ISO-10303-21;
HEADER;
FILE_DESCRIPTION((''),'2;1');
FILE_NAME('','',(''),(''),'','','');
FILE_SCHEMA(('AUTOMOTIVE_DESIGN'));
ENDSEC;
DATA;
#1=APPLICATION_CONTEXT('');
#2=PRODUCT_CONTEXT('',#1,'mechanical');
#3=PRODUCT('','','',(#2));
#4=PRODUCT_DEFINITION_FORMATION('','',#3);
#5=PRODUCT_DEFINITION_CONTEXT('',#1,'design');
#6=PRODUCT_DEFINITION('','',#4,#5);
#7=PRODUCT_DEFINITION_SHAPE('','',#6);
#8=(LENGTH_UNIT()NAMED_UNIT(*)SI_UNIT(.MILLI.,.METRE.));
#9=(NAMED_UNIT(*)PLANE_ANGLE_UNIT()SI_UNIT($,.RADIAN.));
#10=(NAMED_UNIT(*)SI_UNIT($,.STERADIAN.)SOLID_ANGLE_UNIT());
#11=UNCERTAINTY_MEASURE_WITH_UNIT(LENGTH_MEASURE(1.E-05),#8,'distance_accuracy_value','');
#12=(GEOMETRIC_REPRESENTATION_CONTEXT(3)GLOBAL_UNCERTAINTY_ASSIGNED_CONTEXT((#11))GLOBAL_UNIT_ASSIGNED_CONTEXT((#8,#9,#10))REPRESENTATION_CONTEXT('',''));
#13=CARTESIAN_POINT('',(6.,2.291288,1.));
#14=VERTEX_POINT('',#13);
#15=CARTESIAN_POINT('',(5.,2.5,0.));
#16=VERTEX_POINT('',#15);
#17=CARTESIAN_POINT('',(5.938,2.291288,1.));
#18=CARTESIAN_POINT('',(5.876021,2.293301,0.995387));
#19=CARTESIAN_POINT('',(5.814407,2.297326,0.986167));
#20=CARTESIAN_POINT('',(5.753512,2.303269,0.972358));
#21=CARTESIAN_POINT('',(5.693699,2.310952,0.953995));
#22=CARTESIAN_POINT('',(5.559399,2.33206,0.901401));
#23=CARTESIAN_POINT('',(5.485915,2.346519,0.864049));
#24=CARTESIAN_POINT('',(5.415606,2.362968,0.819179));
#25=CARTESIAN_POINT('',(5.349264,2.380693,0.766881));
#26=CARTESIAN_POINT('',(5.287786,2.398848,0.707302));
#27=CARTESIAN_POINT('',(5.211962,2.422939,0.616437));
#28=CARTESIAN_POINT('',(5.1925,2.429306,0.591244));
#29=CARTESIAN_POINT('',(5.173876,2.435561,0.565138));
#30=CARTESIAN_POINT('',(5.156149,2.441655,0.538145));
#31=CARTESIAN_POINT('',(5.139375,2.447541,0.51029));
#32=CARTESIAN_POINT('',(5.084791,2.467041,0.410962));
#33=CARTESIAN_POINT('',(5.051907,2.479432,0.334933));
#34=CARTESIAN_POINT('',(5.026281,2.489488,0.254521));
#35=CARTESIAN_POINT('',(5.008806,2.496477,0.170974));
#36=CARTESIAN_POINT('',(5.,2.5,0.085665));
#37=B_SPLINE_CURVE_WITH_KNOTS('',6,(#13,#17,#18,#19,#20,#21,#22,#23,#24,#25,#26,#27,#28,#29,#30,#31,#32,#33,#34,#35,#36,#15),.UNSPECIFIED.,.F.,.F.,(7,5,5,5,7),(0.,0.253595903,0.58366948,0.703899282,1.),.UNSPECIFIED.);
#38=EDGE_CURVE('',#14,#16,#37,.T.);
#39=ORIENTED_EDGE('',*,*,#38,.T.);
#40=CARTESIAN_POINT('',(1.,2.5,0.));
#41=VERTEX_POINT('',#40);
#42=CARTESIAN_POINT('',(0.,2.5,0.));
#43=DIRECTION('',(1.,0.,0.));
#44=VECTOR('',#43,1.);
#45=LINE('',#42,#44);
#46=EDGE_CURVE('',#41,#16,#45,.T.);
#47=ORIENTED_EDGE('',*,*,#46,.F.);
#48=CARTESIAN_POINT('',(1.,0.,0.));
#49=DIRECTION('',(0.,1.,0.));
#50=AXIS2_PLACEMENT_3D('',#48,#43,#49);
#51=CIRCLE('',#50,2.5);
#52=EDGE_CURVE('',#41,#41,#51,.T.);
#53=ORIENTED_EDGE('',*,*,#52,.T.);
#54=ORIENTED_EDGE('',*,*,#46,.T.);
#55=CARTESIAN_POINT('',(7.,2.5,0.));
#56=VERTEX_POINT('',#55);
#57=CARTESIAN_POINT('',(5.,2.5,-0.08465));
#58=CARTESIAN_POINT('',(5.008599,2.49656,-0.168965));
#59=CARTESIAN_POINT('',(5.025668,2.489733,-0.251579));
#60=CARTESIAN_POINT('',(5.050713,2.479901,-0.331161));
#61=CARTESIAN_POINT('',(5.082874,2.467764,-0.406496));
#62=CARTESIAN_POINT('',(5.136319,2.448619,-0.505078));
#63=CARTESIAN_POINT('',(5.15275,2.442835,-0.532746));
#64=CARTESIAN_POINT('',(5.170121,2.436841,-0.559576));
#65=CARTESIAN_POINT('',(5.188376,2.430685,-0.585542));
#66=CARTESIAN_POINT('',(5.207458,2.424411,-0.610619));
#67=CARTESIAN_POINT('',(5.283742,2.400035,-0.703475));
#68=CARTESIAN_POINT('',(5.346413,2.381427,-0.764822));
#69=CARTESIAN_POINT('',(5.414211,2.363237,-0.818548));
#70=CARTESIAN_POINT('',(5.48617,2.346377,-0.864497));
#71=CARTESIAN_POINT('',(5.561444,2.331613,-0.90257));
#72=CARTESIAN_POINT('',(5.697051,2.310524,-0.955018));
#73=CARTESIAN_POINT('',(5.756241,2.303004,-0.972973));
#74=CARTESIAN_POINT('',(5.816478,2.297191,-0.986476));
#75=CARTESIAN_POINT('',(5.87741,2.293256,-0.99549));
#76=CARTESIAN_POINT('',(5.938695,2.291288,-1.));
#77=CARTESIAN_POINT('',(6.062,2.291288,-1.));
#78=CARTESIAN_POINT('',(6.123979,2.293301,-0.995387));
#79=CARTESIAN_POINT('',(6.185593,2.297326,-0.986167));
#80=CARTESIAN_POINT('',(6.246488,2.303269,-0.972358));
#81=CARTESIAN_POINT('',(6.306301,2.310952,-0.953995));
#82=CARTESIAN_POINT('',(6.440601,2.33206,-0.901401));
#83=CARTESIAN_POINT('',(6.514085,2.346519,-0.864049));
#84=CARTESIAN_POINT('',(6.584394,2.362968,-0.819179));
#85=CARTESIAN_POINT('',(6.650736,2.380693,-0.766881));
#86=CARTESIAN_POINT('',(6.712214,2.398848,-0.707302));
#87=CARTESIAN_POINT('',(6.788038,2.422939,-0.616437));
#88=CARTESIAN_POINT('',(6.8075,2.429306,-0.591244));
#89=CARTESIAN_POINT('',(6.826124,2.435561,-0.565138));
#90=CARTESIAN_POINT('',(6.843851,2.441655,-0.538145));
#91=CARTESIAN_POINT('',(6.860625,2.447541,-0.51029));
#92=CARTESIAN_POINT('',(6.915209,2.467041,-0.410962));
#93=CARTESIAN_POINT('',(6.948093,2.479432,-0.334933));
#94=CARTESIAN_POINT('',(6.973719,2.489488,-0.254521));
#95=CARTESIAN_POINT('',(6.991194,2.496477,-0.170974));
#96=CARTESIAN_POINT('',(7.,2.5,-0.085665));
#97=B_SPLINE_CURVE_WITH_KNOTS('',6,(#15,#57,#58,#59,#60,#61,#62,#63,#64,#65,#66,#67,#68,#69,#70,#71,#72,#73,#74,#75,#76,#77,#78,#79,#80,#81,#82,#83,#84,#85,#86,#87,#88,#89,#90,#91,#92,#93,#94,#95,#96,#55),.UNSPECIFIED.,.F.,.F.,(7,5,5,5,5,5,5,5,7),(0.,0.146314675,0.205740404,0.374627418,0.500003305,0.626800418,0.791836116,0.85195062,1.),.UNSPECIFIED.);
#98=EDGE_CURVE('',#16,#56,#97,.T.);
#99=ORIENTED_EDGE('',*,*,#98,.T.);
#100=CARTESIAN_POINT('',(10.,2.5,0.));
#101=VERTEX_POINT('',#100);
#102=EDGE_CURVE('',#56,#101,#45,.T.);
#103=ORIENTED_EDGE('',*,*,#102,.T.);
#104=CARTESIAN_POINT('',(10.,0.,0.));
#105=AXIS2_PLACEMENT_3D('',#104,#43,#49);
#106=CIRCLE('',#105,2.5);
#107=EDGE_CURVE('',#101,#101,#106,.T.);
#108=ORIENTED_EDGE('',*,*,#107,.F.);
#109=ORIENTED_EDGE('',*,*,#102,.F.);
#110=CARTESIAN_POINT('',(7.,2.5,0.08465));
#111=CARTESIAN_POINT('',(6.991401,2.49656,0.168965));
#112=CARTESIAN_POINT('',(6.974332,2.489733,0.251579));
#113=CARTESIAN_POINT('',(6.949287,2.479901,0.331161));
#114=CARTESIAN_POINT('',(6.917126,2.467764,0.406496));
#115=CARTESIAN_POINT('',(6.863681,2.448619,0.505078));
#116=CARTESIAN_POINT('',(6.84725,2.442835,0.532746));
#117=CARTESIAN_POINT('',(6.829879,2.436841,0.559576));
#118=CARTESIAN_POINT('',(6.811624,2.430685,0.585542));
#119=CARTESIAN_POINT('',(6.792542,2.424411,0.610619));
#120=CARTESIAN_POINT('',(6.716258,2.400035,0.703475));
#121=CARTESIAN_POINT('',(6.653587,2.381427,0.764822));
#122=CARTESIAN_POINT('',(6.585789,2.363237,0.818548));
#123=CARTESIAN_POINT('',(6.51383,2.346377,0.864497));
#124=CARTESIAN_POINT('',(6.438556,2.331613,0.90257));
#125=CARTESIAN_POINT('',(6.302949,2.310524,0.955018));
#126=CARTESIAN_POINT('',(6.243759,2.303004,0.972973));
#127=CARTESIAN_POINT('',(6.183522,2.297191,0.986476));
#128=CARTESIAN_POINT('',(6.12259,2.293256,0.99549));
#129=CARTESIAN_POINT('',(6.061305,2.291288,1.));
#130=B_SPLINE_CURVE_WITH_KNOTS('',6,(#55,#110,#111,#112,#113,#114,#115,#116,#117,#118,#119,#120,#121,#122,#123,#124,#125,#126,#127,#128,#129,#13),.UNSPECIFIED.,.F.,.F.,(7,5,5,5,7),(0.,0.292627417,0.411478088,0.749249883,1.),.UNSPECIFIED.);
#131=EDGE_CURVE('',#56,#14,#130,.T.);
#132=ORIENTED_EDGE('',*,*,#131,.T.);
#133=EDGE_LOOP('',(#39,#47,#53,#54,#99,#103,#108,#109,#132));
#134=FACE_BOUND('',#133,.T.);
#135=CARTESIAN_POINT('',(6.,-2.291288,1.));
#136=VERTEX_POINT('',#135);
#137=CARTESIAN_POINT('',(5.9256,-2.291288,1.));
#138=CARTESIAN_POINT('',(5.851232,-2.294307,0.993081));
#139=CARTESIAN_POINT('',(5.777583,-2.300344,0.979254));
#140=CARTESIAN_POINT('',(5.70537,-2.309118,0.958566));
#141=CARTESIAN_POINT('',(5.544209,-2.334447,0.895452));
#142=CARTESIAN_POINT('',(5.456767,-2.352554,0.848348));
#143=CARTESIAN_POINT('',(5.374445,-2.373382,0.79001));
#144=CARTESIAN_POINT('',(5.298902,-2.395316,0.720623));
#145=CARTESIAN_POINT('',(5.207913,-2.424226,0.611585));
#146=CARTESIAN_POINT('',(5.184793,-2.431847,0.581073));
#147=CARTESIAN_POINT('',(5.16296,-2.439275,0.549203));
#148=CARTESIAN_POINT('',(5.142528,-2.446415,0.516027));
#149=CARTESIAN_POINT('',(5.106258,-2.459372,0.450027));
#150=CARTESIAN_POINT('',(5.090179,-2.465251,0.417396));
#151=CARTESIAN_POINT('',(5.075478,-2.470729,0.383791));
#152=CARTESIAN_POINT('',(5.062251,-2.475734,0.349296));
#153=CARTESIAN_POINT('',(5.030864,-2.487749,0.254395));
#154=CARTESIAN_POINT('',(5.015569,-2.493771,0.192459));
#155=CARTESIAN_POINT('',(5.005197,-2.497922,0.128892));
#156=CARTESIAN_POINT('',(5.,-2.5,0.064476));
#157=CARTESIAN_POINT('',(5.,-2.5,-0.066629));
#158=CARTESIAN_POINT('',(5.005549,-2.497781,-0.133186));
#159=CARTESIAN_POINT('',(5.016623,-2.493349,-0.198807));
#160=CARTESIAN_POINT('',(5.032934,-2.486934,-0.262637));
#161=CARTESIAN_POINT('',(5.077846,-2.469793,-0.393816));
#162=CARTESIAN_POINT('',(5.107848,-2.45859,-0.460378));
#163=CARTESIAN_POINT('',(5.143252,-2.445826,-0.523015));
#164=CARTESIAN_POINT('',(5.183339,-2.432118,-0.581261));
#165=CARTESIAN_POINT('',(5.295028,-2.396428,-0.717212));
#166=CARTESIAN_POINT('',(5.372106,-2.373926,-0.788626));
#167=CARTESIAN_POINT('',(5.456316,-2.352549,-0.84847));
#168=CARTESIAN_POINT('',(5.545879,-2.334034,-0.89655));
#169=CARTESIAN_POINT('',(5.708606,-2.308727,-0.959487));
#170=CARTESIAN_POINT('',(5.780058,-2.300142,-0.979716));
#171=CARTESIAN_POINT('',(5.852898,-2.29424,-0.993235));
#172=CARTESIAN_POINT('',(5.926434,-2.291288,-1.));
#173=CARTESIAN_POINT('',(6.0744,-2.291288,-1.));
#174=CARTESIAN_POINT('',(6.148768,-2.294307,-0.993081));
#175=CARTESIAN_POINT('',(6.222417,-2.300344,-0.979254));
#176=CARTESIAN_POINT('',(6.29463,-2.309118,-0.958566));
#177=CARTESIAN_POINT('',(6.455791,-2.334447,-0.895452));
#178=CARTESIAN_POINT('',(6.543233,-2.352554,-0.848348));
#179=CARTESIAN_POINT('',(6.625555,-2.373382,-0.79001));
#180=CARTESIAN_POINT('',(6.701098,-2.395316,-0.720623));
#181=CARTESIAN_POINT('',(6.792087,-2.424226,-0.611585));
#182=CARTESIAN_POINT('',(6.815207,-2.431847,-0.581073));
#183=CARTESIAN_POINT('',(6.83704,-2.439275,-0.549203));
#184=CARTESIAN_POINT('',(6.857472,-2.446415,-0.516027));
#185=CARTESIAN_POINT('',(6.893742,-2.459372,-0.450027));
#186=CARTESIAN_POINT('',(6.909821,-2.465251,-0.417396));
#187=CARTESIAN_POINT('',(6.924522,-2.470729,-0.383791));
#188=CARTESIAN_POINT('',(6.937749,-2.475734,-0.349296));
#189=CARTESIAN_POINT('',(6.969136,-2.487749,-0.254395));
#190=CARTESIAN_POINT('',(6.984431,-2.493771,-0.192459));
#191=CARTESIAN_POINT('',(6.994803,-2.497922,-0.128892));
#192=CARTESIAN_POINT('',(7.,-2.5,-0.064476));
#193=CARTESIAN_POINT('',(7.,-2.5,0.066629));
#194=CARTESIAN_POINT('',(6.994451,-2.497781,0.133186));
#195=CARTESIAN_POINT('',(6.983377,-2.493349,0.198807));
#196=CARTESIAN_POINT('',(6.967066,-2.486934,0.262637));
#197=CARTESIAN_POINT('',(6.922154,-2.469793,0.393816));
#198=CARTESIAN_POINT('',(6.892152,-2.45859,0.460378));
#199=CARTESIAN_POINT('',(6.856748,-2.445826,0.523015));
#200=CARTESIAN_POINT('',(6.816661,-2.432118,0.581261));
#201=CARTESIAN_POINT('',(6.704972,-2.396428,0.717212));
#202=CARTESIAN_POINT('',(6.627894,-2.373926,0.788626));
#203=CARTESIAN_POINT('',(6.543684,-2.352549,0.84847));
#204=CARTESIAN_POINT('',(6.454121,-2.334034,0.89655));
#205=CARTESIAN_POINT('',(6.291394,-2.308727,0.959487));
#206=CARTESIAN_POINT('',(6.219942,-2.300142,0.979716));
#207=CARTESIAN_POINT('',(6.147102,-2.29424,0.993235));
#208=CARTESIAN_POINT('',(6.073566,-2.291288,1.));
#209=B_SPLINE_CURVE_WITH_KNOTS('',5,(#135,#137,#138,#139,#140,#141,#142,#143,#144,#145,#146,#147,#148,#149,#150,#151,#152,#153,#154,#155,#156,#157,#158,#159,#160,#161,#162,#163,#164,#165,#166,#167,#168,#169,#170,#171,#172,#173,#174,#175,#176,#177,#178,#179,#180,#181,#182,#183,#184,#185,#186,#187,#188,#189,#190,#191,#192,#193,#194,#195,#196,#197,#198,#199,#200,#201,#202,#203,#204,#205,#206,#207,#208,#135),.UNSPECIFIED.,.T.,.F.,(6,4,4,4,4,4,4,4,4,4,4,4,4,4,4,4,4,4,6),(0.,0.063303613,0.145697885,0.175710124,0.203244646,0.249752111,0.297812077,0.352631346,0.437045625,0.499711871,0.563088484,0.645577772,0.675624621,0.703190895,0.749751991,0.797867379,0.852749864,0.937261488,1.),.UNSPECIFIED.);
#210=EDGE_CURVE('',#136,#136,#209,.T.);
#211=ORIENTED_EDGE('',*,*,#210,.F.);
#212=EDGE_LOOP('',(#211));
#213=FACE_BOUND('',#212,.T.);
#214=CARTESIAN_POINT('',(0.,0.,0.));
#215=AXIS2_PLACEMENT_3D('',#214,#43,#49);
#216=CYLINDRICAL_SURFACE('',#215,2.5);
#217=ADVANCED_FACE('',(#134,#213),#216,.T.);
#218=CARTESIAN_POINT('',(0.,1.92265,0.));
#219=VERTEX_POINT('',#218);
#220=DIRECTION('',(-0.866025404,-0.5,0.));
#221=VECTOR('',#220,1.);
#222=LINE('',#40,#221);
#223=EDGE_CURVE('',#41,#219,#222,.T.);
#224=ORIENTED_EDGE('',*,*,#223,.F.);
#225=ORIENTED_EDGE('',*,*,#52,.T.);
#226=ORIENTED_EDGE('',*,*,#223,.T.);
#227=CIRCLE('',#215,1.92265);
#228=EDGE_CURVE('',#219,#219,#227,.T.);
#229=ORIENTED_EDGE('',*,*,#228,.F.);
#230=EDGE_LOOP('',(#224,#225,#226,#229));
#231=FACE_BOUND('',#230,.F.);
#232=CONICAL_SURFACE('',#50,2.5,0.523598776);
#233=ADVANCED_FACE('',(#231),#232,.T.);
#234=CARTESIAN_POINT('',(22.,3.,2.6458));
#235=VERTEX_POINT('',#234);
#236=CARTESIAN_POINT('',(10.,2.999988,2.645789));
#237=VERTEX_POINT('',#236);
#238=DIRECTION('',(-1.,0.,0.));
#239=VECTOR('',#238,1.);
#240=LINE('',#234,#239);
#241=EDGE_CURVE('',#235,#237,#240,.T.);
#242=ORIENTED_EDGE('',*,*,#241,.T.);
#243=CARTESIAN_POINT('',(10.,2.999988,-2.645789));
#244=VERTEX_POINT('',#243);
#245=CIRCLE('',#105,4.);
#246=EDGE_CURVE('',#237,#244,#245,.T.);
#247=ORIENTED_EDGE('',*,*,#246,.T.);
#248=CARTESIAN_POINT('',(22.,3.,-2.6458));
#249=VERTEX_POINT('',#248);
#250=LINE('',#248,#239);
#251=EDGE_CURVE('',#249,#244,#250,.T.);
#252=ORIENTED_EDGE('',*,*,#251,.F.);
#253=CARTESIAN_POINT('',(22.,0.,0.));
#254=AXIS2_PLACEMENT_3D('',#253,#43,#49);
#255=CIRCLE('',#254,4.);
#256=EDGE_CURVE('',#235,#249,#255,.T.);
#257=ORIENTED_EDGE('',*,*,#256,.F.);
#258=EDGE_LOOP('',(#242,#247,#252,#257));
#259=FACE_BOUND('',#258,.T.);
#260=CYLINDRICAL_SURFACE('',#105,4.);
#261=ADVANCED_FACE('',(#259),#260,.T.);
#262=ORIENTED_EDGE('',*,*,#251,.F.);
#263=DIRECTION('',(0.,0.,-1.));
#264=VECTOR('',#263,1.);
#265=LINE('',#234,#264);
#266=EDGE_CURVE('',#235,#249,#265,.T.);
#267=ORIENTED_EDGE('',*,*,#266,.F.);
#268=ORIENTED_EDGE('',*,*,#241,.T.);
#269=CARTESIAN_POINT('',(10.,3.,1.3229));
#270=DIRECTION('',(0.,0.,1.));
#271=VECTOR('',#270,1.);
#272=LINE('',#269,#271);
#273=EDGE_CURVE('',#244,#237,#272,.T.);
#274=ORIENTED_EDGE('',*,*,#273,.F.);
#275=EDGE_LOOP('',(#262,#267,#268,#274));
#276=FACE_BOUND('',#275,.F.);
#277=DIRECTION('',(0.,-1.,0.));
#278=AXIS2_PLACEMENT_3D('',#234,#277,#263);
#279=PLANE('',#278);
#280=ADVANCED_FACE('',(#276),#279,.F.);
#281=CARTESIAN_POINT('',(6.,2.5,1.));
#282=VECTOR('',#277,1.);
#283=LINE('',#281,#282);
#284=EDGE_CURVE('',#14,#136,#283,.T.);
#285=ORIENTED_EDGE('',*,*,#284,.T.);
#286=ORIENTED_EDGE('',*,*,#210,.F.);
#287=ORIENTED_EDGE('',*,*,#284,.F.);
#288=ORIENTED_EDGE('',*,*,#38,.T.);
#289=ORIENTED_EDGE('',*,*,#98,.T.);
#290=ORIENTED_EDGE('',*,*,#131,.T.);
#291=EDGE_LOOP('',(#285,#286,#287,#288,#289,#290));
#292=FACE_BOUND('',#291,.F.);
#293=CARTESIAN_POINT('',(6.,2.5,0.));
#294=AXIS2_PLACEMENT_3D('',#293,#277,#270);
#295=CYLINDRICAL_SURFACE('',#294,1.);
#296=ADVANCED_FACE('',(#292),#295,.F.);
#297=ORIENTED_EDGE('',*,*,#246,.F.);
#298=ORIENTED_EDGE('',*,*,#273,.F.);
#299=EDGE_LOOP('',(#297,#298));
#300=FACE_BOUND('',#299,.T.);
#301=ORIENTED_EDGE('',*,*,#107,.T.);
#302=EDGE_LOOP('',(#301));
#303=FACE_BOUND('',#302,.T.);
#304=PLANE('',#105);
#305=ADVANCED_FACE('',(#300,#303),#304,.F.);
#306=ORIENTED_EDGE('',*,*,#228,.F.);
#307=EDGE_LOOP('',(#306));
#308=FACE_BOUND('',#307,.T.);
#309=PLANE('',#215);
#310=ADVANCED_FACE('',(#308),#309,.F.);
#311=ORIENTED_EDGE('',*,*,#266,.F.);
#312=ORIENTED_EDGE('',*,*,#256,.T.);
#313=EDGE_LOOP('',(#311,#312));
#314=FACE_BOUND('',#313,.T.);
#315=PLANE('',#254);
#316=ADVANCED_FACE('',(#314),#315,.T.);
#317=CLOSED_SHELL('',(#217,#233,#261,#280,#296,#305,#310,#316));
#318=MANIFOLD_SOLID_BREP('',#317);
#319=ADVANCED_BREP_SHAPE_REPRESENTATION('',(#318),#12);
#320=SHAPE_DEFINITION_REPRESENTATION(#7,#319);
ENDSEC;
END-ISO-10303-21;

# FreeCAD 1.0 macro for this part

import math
import FreeCAD as App
import Part
import Sketcher

V = App.Vector


def edges_at(feature, points):
    """Names of the edges that pass closest to the given points."""
    edges = feature.Shape.Edges
    near = lambda p: min(range(len(edges)), key=lambda i: edges[i].distToShape(Part.Vertex(*p))[0])
    return sorted({f"Edge{near(p) + 1}" for p in points})


def add_polygon(sketch, points):
    """Adds a closed chain of lines whose ends are joined by coincident constraints."""
    first, n = sketch.GeometryCount, len(points)
    for a, b in zip(points, points[1:] + points[:1]):
        sketch.addGeometry(Part.LineSegment(App.Vector(*a, 0), App.Vector(*b, 0)), False)
    for i in range(n):
        sketch.addConstraint(Sketcher.Constraint("Coincident", first + i, 2, first + (i + 1) % n, 1))

doc = App.newDocument("Part")
body = doc.addObject("PartDesign::Body", "Body")

# Sketch on XY plane
sketch1 = body.newObject("Sketcher::SketchObject", "Sketch")
sketch1.AttachmentSupport = (doc.getObject("XY_Plane"), [""])
sketch1.MapMode = "FlatFace"
add_polygon(sketch1, [(0, 2.5), (0, 0), (22, 0), (22, 4), (10, 4), (10, 2.5)])  # lines 0-5
sketch1.addConstraint(Sketcher.Constraint("Vertical", 0))
sketch1.addConstraint(Sketcher.Constraint("Horizontal", 1))
sketch1.addConstraint(Sketcher.Constraint("Vertical", 2))
sketch1.addConstraint(Sketcher.Constraint("Horizontal", 3))
sketch1.addConstraint(Sketcher.Constraint("Vertical", 4))
sketch1.addConstraint(Sketcher.Constraint("Horizontal", 5))
sketch1.addConstraint(Sketcher.Constraint("Coincident", 0, 2, -1, 1))
sketch1.addConstraint(Sketcher.Constraint("DistanceX", 3, 2, 3, 1, 12.0))
sketch1.addConstraint(Sketcher.Constraint("DistanceX", 5, 2, 5, 1, 10.0))
sketch1.addConstraint(Sketcher.Constraint("DistanceY", 2, 1, 2, 2, 4.0))
sketch1.addConstraint(Sketcher.Constraint("DistanceY", 0, 2, 0, 1, 2.5))
revolution = body.newObject("PartDesign::Revolution", "Revolution")
revolution.Profile = sketch1
revolution.ReferenceAxis = (sketch1, ["H_Axis"])
revolution.Angle = 360

# Sketch on YZ plane
sketch2 = body.newObject("Sketcher::SketchObject", "Sketch001")
sketch2.AttachmentSupport = (doc.getObject("YZ_Plane"), [""])
sketch2.MapMode = "FlatFace"
sketch2.AttachmentOffset = App.Placement(V(0, 0, 22), App.Rotation())
sketch2.addGeometry(Part.LineSegment(V(3, 2.6458, 0), V(3, -2.6458, 0)), False)
sketch2.addGeometry(Part.ArcOfCircle(Part.Circle(V(0, 0, 0), V(0, 0, 1), 4), math.radians(-41.410145), math.radians(41.410145)), False)
sketch2.addConstraint(Sketcher.Constraint("Coincident", 0, 1, 1, 2))
sketch2.addConstraint(Sketcher.Constraint("Coincident", 1, 1, 0, 2))
sketch2.addConstraint(Sketcher.Constraint("Vertical", 0))
sketch2.addConstraint(Sketcher.Constraint("Coincident", 1, 3, -1, 1))
sketch2.addConstraint(Sketcher.Constraint("DistanceX", -1, 1, 0, 1, 3.0))
sketch2.addConstraint(Sketcher.Constraint("Radius", 1, 4.0))
pocket1 = body.newObject("PartDesign::Pocket", "Pocket")
pocket1.Profile = sketch2
pocket1.Type = "ThroughAll"

# Sketch on XZ plane
sketch3 = body.newObject("Sketcher::SketchObject", "Sketch002")
sketch3.AttachmentSupport = (doc.getObject("XZ_Plane"), [""])
sketch3.MapMode = "FlatFace"
sketch3.AttachmentOffset = App.Placement(V(0, 0, -2.5), App.Rotation())
sketch3.addGeometry(Part.Circle(V(6, 0, 0), V(0, 0, 1), 1), False)
sketch3.addConstraint(Sketcher.Constraint("PointOnObject", 0, 3, -1))
sketch3.addConstraint(Sketcher.Constraint("Diameter", 0, 2.0))
sketch3.addConstraint(Sketcher.Constraint("DistanceX", -1, 1, 0, 3, 6.0))
doc.recompute()
hole = body.newObject("PartDesign::Hole", "Hole")
hole.Profile = sketch3
hole.ThreadType = "None"
hole.Diameter = 2
hole.DepthType = "ThroughAll"
hole.Reversed = True
doc.recompute()

chamfer = body.newObject("PartDesign::Chamfer", "Chamfer")
chamfer.Base = (hole, edges_at(hole, [(0, -2.5, 0)]))
chamfer.ChamferType = "Distance and Angle"
chamfer.Size = 1
chamfer.Angle = 30
chamfer.FlipDirection = True

doc.recompute()
